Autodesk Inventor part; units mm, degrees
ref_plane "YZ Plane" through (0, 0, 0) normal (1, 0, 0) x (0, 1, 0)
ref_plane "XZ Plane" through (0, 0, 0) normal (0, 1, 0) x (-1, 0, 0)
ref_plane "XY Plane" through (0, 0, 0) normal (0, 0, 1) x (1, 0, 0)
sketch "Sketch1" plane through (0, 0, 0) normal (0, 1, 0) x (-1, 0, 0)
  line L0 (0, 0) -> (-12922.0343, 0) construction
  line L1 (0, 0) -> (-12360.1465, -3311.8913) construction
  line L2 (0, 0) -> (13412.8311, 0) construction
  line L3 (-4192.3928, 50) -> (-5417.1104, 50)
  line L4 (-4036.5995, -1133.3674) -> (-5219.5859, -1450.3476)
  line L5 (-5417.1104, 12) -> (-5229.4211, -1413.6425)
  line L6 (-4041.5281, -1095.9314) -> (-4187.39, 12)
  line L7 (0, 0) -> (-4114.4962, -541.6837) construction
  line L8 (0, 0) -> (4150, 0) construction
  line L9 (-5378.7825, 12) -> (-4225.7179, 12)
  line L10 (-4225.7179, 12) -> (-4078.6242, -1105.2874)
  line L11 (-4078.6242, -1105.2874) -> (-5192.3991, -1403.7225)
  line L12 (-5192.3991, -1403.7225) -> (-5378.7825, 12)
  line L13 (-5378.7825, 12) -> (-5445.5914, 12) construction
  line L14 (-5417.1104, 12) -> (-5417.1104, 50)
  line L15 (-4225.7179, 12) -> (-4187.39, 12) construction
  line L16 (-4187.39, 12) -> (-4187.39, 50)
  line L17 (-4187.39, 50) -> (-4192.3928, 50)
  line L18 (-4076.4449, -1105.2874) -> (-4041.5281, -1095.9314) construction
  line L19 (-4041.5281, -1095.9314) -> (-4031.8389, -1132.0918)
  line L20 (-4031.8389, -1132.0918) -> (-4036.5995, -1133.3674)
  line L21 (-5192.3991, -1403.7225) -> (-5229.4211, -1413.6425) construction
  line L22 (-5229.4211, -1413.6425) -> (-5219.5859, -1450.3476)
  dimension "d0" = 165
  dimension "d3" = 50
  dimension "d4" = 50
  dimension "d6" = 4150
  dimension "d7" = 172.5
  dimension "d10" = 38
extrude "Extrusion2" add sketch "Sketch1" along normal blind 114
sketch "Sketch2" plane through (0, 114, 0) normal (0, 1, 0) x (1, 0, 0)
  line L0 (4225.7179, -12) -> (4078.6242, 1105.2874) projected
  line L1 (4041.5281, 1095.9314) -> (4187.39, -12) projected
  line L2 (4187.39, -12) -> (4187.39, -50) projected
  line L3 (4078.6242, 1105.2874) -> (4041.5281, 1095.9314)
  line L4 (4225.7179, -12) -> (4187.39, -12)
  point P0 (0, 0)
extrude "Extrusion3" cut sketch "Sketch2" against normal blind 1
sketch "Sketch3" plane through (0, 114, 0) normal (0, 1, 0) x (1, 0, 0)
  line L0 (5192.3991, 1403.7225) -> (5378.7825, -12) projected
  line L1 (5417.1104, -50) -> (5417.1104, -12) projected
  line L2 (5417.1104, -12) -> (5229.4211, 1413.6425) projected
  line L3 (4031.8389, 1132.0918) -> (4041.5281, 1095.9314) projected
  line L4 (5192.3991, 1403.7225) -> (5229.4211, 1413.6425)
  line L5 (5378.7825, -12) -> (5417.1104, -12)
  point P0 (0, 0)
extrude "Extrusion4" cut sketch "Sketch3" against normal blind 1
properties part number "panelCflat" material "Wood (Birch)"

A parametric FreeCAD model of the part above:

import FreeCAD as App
import Part
import Sketcher
from FreeCAD import Vector
Q = App.Units.Quantity

doc = App.newDocument("Part")
body = doc.addObject("PartDesign::Body", "Body")

sketch1 = body.newObject("Sketcher::SketchObject", "Sketch")
sketch1.AttachmentSupport = (doc.getObject("XZ_Plane"), [""])
sketch1.MapMode = "FlatFace"
sketch1.addGeometry([
    Part.LineSegment(Vector(4187.4, 50, 0), Vector(5417.1, 50, 0)),
    Part.LineSegment(Vector(5417.1, 50, 0), Vector(5417.1, 12, 0)),
    Part.LineSegment(Vector(5417.1, 12, 0), Vector(5229.4, -1413.6, 0)),
    Part.LineSegment(Vector(5229.4, -1413.6, 0), Vector(5219.6, -1450.3, 0)),
    Part.LineSegment(Vector(5219.6, -1450.3, 0), Vector(4036.6, -1133.4, 0)),
    Part.LineSegment(Vector(4036.6, -1133.4, 0), Vector(4031.8, -1132.1, 0)),
    Part.LineSegment(Vector(4031.8, -1132.1, 0), Vector(4041.5, -1095.9, 0)),
    Part.LineSegment(Vector(4041.5, -1095.9, 0), Vector(4187.4, 12, 0)),
    Part.LineSegment(Vector(4187.4, 12, 0), Vector(4187.4, 50, 0)),
    Part.LineSegment(Vector(5192.4, -1403.7, 0), Vector(5378.8, 12, 0)),
    Part.LineSegment(Vector(5378.8, 12, 0), Vector(4225.7, 12, 0)),
    Part.LineSegment(Vector(4225.7, 12, 0), Vector(4078.6, -1105.3, 0)),
    Part.LineSegment(Vector(4078.6, -1105.3, 0), Vector(5192.4, -1403.7, 0)),
], False)
sketch1.addConstraint([
    Sketcher.Constraint("Coincident", 0, 2, 1, 1),
    Sketcher.Constraint("Coincident", 1, 2, 2, 1),
    Sketcher.Constraint("Coincident", 2, 2, 3, 1),
    Sketcher.Constraint("Coincident", 3, 2, 4, 1),
    Sketcher.Constraint("Coincident", 4, 2, 5, 1),
    Sketcher.Constraint("Coincident", 5, 2, 6, 1),
    Sketcher.Constraint("Coincident", 6, 2, 7, 1),
    Sketcher.Constraint("Coincident", 7, 2, 8, 1),
    Sketcher.Constraint("Coincident", 8, 2, 0, 1),
    Sketcher.Constraint("Coincident", 9, 2, 10, 1),
    Sketcher.Constraint("Coincident", 10, 2, 11, 1),
    Sketcher.Constraint("Coincident", 11, 2, 12, 1),
    Sketcher.Constraint("Coincident", 12, 2, 9, 1),
    Sketcher.Constraint("Horizontal", 0),
    Sketcher.Constraint("Vertical", 1),
    Sketcher.Constraint("Vertical", 8),
    Sketcher.Constraint("Horizontal", 10),
    Sketcher.Constraint("Perpendicular", 3, 4),
    Sketcher.Constraint("Parallel", 4, 5),
    Sketcher.Constraint("Perpendicular", 5, 6),
    Sketcher.Constraint("Parallel", 2, 7),
    Sketcher.Constraint("Parallel", 7, 9),
    Sketcher.Constraint("Parallel", 9, 11),
    Sketcher.Constraint("Perpendicular", 6, 12),
    Sketcher.Constraint("Horizontal", 1, 2, 7, 2),
    Sketcher.Constraint("Horizontal", 7, 2, 9, 2),
    Sketcher.Constraint("DistanceY", 1, 2, 1, 1, 38.0),
    Sketcher.Constraint("Angle", 4, Q("165 deg")),
    Sketcher.Constraint("Distance", 3, 38.0),
    Sketcher.Constraint("DistanceY", -1, 1, 0, 2, 50.0),
    Sketcher.Constraint("Angle", 2, Q("-97.5 deg")),
    Sketcher.Constraint("DistanceX", -1, 1, 7, 2, 4187.39),
    Sketcher.Constraint("DistanceY", 4, 2, 11, 2, 28.08),
    Sketcher.Constraint("DistanceY", 2, 2, 12, 2, 9.92),
    Sketcher.Constraint("Distance", 6, 37.436),
    Sketcher.Constraint("DistanceX", 0, 1, 0, 2, 1229.7204),
    Sketcher.Constraint("DistanceX", 10, 2, 10, 1, 1153.0646),
    Sketcher.Constraint("DistanceX", -1, 1, 2, 2, 5229.421),
    Sketcher.Constraint("DistanceX", -1, 1, 10, 2, 4225.718),
])
pad1 = body.newObject("PartDesign::Pad", "Pad")
pad1.Profile = sketch1
pad1.Length = 114
pad1.Reversed = True

sketch2 = body.newObject("Sketcher::SketchObject", "Sketch001")
sketch2.AttachmentSupport = (doc.getObject("XZ_Plane"), [""])
sketch2.MapMode = "FlatFace"
sketch2.AttachmentOffset = App.Placement(Vector(0, 0, -114), App.Rotation())
sketch2.addGeometry([
    Part.LineSegment(Vector(4187.39, 12, 0), Vector(4225.7179, 12, 0)),
    Part.LineSegment(Vector(4225.7179, 12, 0), Vector(4078.6242, -1105.2874, 0)),
    Part.LineSegment(Vector(4078.6242, -1105.2874, 0), Vector(4041.5281, -1095.9314, 0)),
    Part.LineSegment(Vector(4041.5281, -1095.9314, 0), Vector(4187.39, 12, 0)),
], False)
sketch2.addConstraint([
    Sketcher.Constraint("Coincident", 0, 2, 1, 1),
    Sketcher.Constraint("Coincident", 1, 2, 2, 1),
    Sketcher.Constraint("Coincident", 2, 2, 3, 1),
    Sketcher.Constraint("Coincident", 3, 2, 0, 1),
    Sketcher.Constraint("Horizontal", 0),
    Sketcher.Constraint("Parallel", 1, 3),
    Sketcher.Constraint("DistanceY", -1, 1, 0, 2, 12.0),
    Sketcher.Constraint("Angle", 1, Q("-97.5 deg")),
    Sketcher.Constraint("DistanceX", 0, 1, 0, 2, 38.328),
    Sketcher.Constraint("DistanceX", -1, 1, 3, 2, 4187.39),
    Sketcher.Constraint("DistanceX", -1, 1, 2, 2, 4041.528),
    Sketcher.Constraint("DistanceX", 2, 2, 1, 2, 37.096),
])
pocket1 = body.newObject("PartDesign::Pocket", "Pocket")
pocket1.Profile = sketch2
pocket1.Length = 1
pocket1.Reversed = True

sketch3 = body.newObject("Sketcher::SketchObject", "Sketch002")
sketch3.AttachmentSupport = (doc.getObject("XZ_Plane"), [""])
sketch3.MapMode = "FlatFace"
sketch3.AttachmentOffset = App.Placement(Vector(0, 0, -114), App.Rotation())
sketch3.addGeometry([
    Part.LineSegment(Vector(5229, -1414, 0), Vector(5192, -1404, 0)),
    Part.LineSegment(Vector(5192, -1404, 0), Vector(5379, 12, 0)),
    Part.LineSegment(Vector(5379, 12, 0), Vector(5417, 12, 0)),
    Part.LineSegment(Vector(5417, 12, 0), Vector(5229, -1414, 0)),
], False)
sketch3.addConstraint([
    Sketcher.Constraint("Coincident", 0, 2, 1, 1),
    Sketcher.Constraint("Coincident", 1, 2, 2, 1),
    Sketcher.Constraint("Coincident", 2, 2, 3, 1),
    Sketcher.Constraint("Coincident", 3, 2, 0, 1),
    Sketcher.Constraint("Horizontal", 2),
    Sketcher.Constraint("Parallel", 1, 3),
    Sketcher.Constraint("Angle", 0, Q("165 deg")),
    Sketcher.Constraint("DistanceY", -1, 1, 1, 2, 12.0),
    Sketcher.Constraint("Angle", 1, Q("82.5 deg")),
    Sketcher.Constraint("DistanceX", 2, 1, 2, 2, 38.328),
    Sketcher.Constraint("DistanceX", -1, 1, 0, 2, 5192.399),
    Sketcher.Constraint("Distance", 1, 1427.9387),
])
pocket2 = body.newObject("PartDesign::Pocket", "Pocket001")
pocket2.Profile = sketch3
pocket2.Length = 1
pocket2.Reversed = True

doc.recompute()
